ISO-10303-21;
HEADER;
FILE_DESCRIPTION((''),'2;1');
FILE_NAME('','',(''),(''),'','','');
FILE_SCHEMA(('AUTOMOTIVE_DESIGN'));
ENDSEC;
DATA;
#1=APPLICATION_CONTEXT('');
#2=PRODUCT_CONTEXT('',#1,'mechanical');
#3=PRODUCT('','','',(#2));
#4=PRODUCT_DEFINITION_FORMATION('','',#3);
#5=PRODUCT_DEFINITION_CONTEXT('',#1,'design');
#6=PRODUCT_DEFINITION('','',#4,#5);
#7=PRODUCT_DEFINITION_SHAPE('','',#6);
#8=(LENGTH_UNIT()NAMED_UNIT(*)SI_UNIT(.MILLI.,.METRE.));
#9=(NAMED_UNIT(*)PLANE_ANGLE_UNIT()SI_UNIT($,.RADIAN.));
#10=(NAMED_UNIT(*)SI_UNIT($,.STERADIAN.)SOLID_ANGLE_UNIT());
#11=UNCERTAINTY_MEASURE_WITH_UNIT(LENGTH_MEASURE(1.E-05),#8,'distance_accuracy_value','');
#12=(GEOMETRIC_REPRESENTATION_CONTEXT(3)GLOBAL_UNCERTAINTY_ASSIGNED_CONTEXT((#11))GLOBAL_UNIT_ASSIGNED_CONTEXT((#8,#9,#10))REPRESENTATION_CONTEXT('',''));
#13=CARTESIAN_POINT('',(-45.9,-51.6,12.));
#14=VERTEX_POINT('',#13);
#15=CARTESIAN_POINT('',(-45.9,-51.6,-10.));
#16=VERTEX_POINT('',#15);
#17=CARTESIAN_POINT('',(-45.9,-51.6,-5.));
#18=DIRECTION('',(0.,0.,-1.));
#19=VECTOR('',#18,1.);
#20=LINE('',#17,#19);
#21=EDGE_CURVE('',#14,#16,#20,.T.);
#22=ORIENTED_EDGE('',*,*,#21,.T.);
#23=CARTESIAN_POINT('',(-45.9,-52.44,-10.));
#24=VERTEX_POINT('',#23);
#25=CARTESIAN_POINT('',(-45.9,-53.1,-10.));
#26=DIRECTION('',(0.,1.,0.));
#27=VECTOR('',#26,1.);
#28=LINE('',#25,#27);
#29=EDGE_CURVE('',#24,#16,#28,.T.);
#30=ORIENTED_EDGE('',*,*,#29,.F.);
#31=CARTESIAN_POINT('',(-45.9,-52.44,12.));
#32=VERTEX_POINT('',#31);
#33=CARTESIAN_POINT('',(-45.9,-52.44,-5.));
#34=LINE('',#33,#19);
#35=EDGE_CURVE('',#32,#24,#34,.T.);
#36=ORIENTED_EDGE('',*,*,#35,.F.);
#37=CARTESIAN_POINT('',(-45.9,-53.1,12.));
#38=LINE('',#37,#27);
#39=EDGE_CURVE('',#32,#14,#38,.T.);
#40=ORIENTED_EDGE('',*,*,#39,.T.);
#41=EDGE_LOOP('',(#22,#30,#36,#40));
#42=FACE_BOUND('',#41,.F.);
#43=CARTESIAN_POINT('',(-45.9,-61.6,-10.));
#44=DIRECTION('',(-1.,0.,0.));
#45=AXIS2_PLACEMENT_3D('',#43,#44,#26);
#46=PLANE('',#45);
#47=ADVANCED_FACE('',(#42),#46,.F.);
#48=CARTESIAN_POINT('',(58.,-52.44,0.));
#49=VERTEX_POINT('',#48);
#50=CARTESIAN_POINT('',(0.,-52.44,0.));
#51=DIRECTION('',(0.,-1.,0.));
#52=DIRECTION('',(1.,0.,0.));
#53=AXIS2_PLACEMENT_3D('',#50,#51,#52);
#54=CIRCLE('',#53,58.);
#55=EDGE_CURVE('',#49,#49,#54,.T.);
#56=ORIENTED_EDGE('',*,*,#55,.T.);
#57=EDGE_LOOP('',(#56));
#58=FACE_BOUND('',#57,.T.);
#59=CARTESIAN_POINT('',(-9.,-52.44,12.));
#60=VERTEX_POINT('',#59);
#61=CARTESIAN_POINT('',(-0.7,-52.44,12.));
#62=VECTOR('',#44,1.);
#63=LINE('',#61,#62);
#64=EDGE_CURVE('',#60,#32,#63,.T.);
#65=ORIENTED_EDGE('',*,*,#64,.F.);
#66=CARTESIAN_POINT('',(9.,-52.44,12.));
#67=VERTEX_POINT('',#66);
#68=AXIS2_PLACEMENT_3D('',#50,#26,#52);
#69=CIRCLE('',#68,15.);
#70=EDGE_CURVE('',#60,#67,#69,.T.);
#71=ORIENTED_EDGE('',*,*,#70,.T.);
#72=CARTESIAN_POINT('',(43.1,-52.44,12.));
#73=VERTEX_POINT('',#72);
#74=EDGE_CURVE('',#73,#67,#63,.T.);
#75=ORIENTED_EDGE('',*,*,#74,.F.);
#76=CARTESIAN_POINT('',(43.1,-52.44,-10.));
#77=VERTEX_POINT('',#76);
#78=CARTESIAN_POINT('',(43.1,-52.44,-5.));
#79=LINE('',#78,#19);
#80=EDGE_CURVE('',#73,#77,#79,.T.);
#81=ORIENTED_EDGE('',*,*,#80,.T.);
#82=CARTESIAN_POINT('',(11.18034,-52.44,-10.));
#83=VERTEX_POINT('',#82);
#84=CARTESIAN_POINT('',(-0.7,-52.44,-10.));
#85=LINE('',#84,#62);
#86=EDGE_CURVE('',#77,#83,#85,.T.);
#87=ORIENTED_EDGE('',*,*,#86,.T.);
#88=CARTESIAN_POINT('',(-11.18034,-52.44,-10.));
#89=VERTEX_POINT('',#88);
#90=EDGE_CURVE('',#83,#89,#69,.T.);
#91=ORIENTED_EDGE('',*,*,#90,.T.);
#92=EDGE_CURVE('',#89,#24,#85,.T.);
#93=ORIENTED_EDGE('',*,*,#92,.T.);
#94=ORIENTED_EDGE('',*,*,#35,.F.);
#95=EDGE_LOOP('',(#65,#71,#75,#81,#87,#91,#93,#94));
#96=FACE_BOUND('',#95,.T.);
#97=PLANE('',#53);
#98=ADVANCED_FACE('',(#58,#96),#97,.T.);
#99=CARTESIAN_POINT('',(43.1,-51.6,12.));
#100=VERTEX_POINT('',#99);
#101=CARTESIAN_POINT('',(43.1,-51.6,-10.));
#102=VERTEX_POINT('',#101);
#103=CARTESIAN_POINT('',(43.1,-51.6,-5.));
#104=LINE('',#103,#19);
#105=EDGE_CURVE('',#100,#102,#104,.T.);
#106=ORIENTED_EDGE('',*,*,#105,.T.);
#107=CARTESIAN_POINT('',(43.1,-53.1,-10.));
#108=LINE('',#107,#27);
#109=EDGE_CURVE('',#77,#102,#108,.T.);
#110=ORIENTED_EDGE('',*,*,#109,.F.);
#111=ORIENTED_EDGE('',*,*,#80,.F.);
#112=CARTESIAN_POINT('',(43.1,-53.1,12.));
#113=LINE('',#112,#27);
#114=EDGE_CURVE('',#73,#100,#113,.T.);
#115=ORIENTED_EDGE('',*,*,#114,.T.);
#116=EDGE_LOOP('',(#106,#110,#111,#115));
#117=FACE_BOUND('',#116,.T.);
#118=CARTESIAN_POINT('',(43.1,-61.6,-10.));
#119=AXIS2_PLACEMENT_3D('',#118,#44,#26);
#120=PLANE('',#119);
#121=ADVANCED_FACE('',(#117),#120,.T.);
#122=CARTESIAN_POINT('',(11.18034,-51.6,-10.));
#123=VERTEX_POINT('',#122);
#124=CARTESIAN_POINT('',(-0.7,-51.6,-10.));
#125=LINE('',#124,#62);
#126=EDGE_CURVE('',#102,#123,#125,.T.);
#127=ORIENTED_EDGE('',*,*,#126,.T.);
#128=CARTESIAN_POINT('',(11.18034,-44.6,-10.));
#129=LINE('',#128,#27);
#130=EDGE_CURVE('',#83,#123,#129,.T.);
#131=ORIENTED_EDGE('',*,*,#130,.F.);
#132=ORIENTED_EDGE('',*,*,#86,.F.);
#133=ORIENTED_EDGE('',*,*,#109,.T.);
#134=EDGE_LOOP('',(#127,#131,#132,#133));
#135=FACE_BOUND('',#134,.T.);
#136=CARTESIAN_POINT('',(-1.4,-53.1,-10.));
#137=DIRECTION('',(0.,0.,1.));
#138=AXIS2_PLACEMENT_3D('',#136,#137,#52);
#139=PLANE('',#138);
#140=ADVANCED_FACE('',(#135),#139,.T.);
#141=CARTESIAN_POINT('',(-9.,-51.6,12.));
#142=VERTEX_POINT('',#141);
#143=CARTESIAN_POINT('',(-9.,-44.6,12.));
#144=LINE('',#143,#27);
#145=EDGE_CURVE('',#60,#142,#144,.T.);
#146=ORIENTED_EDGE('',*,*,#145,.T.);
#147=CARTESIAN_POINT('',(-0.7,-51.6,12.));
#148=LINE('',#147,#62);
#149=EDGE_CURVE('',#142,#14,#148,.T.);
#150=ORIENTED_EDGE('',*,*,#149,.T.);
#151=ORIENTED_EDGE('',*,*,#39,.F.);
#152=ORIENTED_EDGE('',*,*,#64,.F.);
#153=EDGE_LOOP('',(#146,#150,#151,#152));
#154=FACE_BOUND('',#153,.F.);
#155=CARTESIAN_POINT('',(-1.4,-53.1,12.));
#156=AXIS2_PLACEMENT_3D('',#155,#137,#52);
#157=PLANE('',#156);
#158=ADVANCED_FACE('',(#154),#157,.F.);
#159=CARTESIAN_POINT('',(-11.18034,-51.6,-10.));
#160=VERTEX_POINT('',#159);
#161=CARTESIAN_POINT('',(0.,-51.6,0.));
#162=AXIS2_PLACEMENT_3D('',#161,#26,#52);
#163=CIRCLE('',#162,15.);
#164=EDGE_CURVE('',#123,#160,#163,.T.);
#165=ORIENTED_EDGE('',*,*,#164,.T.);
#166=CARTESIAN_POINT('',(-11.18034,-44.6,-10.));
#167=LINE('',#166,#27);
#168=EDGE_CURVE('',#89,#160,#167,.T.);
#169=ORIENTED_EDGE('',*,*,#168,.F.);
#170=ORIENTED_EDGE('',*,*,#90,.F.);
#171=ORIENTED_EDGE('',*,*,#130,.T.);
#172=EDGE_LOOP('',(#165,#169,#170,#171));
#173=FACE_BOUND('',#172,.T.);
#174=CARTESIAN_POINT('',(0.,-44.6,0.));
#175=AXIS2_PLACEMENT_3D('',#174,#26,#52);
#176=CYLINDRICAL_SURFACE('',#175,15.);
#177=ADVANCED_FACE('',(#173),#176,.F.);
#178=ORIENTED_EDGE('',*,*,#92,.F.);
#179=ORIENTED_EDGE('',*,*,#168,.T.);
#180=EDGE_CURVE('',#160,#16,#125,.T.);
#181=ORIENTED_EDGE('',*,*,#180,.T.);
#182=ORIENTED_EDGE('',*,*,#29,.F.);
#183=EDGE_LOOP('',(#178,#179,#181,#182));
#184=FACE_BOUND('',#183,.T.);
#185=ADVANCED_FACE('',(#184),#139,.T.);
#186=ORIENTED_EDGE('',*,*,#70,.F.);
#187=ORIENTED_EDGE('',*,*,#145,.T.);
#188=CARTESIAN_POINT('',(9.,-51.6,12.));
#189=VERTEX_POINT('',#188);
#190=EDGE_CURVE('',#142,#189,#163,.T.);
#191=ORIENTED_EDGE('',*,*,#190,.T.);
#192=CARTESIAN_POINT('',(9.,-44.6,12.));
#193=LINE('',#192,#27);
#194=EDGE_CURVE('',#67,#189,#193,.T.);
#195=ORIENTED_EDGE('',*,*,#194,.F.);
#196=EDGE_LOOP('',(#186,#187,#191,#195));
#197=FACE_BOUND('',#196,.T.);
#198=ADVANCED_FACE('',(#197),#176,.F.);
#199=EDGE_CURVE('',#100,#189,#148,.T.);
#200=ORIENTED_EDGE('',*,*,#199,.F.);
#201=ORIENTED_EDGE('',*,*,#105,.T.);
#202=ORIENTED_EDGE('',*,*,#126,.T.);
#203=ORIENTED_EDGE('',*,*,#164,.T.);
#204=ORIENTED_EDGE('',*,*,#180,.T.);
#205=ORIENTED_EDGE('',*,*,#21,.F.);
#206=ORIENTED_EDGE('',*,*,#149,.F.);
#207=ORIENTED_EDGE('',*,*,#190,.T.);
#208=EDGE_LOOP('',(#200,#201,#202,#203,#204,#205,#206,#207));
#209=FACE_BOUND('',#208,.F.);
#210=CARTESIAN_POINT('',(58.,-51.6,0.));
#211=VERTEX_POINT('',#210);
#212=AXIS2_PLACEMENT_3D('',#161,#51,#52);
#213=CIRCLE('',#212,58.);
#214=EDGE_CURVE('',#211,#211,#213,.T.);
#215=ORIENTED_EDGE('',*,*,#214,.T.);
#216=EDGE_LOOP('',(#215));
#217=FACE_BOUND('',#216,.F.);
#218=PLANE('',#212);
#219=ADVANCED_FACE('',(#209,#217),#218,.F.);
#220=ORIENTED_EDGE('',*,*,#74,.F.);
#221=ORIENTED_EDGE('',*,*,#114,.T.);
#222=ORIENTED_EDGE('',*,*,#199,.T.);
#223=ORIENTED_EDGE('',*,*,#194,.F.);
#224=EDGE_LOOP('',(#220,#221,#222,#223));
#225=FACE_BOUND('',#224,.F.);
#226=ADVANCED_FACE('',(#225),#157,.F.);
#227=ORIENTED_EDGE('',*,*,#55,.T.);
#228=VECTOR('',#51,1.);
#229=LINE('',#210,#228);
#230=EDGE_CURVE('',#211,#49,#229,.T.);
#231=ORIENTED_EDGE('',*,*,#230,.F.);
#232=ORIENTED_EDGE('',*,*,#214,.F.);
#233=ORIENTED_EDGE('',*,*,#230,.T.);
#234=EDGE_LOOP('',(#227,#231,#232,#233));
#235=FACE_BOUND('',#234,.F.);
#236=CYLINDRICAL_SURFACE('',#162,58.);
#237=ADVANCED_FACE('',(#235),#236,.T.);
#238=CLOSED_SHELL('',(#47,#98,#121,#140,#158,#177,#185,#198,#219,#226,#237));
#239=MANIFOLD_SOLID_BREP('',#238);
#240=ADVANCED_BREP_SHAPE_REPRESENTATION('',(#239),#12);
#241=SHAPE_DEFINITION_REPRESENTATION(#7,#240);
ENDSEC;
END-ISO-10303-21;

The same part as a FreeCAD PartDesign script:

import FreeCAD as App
import Part
import Sketcher
from FreeCAD import Vector

doc = App.newDocument("Part")
body = doc.addObject("PartDesign::Body", "Body")

# Sketch on XZ plane
sketch1 = body.newObject("Sketcher::SketchObject", "Sketch")
sketch1.AttachmentSupport = (doc.getObject("XZ_Plane"), [""])
sketch1.MapMode = "FlatFace"
sketch1.AttachmentOffset = App.Placement(Vector(0, 0, 42.6), App.Rotation())
sketch1.addGeometry(Part.Circle(Vector(0, 0, 0), Vector(0, 0, 1), 15), False)
sketch1.addConstraint(Sketcher.Constraint("Coincident", 0, 3, -1, 1))
sketch1.addConstraint(Sketcher.Constraint("Diameter", 0, 30.0))
pad1 = body.newObject("PartDesign::Pad", "Pad")
pad1.Profile = sketch1
pad1.Length = 17.84
body2 = doc.addObject("PartDesign::Body", "Body001")

# Sketch on XY plane
sketch2 = body2.newObject("Sketcher::SketchObject", "Sketch001")
sketch2.AttachmentSupport = (doc.getObject("XY_Plane001"), [""])
sketch2.MapMode = "FlatFace"
sketch2.AttachmentOffset = App.Placement(Vector(0, 0, -10), App.Rotation())
sketch2.addGeometry(Part.LineSegment(Vector(-45.9, -42.6, 0), Vector(-45.9, -59.6, 0)), False)
sketch2.addGeometry(Part.LineSegment(Vector(-45.9, -59.6, 0), Vector(43.1, -59.6, 0)), False)
sketch2.addGeometry(Part.LineSegment(Vector(43.1, -59.6, 0), Vector(43.1, -42.6, 0)), False)
sketch2.addGeometry(Part.LineSegment(Vector(43.1, -42.6, 0), Vector(-45.9, -42.6, 0)), False)
sketch2.addConstraint(Sketcher.Constraint("Coincident", 0, 2, 1, 1))
sketch2.addConstraint(Sketcher.Constraint("Coincident", 1, 2, 2, 1))
sketch2.addConstraint(Sketcher.Constraint("Coincident", 2, 2, 3, 1))
sketch2.addConstraint(Sketcher.Constraint("Coincident", 3, 2, 0, 1))
sketch2.addConstraint(Sketcher.Constraint("Vertical", 0))
sketch2.addConstraint(Sketcher.Constraint("Horizontal", 1))
sketch2.addConstraint(Sketcher.Constraint("Vertical", 2))
sketch2.addConstraint(Sketcher.Constraint("Horizontal", 3))
sketch2.addConstraint(Sketcher.Constraint("DistanceX", 1, 1, 1, 2, 89.0))
sketch2.addConstraint(Sketcher.Constraint("DistanceY", 0, 2, 0, 1, 17.0))
sketch2.addConstraint(Sketcher.Constraint("DistanceX", 0, 2, -1, 1, 45.9))
sketch2.addConstraint(Sketcher.Constraint("DistanceY", 0, 2, -1, 1, 59.6))
pad2 = body2.newObject("PartDesign::Pad", "Pad001")
pad2.Profile = sketch2
pad2.Length = 22
body3 = doc.addObject("PartDesign::Body", "Body002")

# Sketch on XZ plane
sketch3 = body3.newObject("Sketcher::SketchObject", "Sketch002")
sketch3.AttachmentSupport = (doc.getObject("XZ_Plane002"), [""])
sketch3.MapMode = "FlatFace"
sketch3.AttachmentOffset = App.Placement(Vector(0, 0, 49.6), App.Rotation())
sketch3.addGeometry(Part.Circle(Vector(0, 0, 0), Vector(0, 0, 1), 58), False)
sketch3.addConstraint(Sketcher.Constraint("Coincident", 0, 3, -1, 1))
sketch3.addConstraint(Sketcher.Constraint("Diameter", 0, 116.0))
pad3 = body3.newObject("PartDesign::Pad", "Pad002")
pad3.Profile = sketch3
pad3.Length = 0.84
doc.recompute()

boolean = body3.newObject("PartDesign::Boolean", "Boolean")
boolean.Type = "Cut"
boolean.addObjects([body2])
doc.recompute()

boolean2 = body3.newObject("PartDesign::Boolean", "Boolean001")
boolean2.Type = "Cut"
boolean2.addObjects([body])
body4 = doc.addObject("PartDesign::Body", "Body003")
doc.recompute()

body3.Placement = App.Placement(Vector(0, -2, 0), App.Rotation(Vector(0, 0, 1), 0))
boolean3 = body4.newObject("PartDesign::Boolean", "Boolean002")
boolean3.Type = "Fuse"
boolean3.addObjects([body3])

doc.recompute()
